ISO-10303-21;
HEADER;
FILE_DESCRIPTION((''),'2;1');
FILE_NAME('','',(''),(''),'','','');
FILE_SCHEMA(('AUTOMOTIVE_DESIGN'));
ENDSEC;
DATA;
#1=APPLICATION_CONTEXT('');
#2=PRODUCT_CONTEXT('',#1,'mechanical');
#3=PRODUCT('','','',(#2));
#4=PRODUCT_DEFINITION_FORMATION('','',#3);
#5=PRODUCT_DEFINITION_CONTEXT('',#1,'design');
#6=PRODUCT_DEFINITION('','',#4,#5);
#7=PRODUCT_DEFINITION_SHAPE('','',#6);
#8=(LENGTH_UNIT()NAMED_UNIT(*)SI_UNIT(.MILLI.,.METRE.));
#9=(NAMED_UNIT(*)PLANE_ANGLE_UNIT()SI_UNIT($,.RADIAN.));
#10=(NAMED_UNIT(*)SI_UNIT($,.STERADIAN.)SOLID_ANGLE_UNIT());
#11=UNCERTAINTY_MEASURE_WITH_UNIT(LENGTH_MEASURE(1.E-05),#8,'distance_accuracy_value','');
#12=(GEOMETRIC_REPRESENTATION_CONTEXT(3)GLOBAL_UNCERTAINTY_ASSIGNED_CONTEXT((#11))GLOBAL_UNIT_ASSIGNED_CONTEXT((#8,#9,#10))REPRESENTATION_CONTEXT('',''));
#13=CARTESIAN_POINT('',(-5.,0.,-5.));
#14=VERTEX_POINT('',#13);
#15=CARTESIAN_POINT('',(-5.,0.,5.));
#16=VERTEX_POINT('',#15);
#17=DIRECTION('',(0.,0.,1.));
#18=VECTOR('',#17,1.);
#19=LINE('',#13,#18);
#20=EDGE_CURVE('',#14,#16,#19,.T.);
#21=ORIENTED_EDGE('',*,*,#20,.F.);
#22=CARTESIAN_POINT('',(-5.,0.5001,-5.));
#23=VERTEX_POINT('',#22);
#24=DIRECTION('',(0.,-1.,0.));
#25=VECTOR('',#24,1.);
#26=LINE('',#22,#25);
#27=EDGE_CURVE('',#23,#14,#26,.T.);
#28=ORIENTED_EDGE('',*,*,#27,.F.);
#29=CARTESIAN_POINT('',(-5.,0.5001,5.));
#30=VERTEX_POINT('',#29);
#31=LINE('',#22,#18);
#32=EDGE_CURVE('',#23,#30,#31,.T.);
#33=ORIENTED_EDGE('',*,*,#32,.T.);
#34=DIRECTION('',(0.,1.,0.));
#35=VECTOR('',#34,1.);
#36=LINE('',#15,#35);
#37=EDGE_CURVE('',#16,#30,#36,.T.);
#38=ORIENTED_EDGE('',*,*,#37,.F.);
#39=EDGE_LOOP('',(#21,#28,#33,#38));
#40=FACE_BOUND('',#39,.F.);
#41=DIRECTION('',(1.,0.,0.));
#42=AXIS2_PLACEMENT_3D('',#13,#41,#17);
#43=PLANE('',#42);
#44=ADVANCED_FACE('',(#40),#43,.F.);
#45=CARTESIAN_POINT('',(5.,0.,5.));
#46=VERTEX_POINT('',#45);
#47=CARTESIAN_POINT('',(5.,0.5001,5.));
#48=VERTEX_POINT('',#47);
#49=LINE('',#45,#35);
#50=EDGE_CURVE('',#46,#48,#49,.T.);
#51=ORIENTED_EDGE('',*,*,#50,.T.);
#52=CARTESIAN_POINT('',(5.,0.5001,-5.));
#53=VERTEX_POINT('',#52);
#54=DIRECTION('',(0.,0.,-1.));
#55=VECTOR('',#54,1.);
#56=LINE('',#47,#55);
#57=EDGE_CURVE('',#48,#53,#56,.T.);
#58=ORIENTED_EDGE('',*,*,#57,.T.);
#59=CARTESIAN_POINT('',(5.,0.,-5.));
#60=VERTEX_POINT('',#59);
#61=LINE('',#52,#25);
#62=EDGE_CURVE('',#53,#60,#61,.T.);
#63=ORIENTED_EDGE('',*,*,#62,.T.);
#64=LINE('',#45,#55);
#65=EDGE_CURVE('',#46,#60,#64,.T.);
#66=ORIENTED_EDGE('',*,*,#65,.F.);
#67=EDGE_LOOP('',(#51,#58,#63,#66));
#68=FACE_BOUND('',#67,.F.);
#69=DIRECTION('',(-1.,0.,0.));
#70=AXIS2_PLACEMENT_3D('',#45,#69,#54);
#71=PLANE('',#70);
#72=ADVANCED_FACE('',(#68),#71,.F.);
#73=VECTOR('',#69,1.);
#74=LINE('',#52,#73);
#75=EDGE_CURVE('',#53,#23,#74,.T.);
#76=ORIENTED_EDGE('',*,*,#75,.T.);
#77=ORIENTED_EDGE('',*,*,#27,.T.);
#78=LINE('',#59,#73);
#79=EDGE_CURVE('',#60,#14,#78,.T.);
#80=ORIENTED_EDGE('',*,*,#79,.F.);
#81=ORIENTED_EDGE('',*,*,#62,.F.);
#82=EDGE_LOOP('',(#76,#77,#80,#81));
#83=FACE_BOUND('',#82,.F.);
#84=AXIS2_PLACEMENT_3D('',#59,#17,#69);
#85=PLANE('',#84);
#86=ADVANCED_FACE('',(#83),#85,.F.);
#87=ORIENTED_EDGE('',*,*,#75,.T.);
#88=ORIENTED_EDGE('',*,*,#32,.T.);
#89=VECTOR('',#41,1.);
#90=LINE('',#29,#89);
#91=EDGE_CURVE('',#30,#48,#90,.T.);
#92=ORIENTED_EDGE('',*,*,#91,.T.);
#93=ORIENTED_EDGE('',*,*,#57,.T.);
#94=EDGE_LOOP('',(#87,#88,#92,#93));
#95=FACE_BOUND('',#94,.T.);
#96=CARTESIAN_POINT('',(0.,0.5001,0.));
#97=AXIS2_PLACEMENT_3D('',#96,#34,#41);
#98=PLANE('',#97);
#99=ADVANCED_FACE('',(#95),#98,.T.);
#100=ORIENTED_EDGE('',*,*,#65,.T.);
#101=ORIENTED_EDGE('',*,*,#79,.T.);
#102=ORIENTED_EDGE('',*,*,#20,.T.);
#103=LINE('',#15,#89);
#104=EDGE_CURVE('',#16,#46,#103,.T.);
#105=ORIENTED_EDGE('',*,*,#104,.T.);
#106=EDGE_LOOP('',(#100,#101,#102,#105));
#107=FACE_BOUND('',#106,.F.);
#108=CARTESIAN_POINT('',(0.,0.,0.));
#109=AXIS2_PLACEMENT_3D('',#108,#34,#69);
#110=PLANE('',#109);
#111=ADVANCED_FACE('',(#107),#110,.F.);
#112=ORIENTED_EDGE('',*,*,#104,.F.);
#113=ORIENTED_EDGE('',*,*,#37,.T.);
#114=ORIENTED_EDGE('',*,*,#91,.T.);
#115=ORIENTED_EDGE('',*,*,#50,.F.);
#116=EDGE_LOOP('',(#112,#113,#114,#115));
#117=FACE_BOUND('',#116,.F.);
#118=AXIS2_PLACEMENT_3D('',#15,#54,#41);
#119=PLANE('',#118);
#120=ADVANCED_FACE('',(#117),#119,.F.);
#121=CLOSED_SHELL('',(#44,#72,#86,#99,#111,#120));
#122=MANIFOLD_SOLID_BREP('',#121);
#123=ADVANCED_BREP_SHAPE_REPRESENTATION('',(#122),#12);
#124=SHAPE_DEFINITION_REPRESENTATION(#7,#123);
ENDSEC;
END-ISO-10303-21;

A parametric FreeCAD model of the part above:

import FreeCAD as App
import Part
import Sketcher

doc = App.newDocument("Part")
body = doc.addObject("PartDesign::Body", "Body")

# Sketch on XZ plane
sketch1 = body.newObject("Sketcher::SketchObject", "Sketch")
sketch1.AttachmentSupport = (doc.getObject("XZ_Plane"), [""])
sketch1.MapMode = "FlatFace"
sketch1.addGeometry([
    Part.LineSegment(App.Vector(-5, -5, 0), App.Vector(-5, 5, 0)),
    Part.LineSegment(App.Vector(-5, 5, 0), App.Vector(5, 5, 0)),
    Part.LineSegment(App.Vector(5, 5, 0), App.Vector(5, -5, 0)),
    Part.LineSegment(App.Vector(5, -5, 0), App.Vector(-5, -5, 0)),
], False)
sketch1.addConstraint([
    Sketcher.Constraint("Coincident", 0, 2, 1, 1),
    Sketcher.Constraint("Coincident", 1, 2, 2, 1),
    Sketcher.Constraint("Coincident", 2, 2, 3, 1),
    Sketcher.Constraint("Coincident", 3, 2, 0, 1),
    Sketcher.Constraint("Vertical", 0),
    Sketcher.Constraint("Horizontal", 1),
    Sketcher.Constraint("Vertical", 2),
    Sketcher.Constraint("Horizontal", 3),
    Sketcher.Constraint("Symmetric", 0, 2, 2, 2, -1, 1),
    Sketcher.Constraint("Equal", 3, 0),
    Sketcher.Constraint("DistanceX", 1, 1, 1, 2, 10.0),
])
pad1 = body.newObject("PartDesign::Pad", "Pad")
pad1.Profile = sketch1
pad1.Length = 0.5
pad1.Reversed = True

# Sketch on XZ plane
sketch2 = body.newObject("Sketcher::SketchObject", "Sketch001")
sketch2.AttachmentSupport = (doc.getObject("XZ_Plane"), [""])
sketch2.MapMode = "FlatFace"
sketch2.AttachmentOffset = App.Placement(App.Vector(0, 0, -0.5), App.Rotation())
sketch2.addGeometry([
    Part.LineSegment(App.Vector(-5, -5, 0), App.Vector(-5, 5, 0)),
    Part.LineSegment(App.Vector(-5, 5, 0), App.Vector(5, 5, 0)),
    Part.LineSegment(App.Vector(5, 5, 0), App.Vector(5, -5, 0)),
    Part.LineSegment(App.Vector(5, -5, 0), App.Vector(-5, -5, 0)),
], False)
sketch2.addConstraint([
    Sketcher.Constraint("Coincident", 0, 2, 1, 1),
    Sketcher.Constraint("Coincident", 1, 2, 2, 1),
    Sketcher.Constraint("Coincident", 2, 2, 3, 1),
    Sketcher.Constraint("Coincident", 3, 2, 0, 1),
    Sketcher.Constraint("Vertical", 0),
    Sketcher.Constraint("Horizontal", 1),
    Sketcher.Constraint("Vertical", 2),
    Sketcher.Constraint("Horizontal", 3),
    Sketcher.Constraint("Symmetric", 0, 2, 2, 2, -1, 1),
    Sketcher.Constraint("Equal", 3, 0),
    Sketcher.Constraint("DistanceX", 1, 1, 1, 2, 10.0),
])
pad2 = body.newObject("PartDesign::Pad", "Pad001")
pad2.Profile = sketch2
pad2.Length = 0.0001
pad2.Reversed = True

doc.recompute()
